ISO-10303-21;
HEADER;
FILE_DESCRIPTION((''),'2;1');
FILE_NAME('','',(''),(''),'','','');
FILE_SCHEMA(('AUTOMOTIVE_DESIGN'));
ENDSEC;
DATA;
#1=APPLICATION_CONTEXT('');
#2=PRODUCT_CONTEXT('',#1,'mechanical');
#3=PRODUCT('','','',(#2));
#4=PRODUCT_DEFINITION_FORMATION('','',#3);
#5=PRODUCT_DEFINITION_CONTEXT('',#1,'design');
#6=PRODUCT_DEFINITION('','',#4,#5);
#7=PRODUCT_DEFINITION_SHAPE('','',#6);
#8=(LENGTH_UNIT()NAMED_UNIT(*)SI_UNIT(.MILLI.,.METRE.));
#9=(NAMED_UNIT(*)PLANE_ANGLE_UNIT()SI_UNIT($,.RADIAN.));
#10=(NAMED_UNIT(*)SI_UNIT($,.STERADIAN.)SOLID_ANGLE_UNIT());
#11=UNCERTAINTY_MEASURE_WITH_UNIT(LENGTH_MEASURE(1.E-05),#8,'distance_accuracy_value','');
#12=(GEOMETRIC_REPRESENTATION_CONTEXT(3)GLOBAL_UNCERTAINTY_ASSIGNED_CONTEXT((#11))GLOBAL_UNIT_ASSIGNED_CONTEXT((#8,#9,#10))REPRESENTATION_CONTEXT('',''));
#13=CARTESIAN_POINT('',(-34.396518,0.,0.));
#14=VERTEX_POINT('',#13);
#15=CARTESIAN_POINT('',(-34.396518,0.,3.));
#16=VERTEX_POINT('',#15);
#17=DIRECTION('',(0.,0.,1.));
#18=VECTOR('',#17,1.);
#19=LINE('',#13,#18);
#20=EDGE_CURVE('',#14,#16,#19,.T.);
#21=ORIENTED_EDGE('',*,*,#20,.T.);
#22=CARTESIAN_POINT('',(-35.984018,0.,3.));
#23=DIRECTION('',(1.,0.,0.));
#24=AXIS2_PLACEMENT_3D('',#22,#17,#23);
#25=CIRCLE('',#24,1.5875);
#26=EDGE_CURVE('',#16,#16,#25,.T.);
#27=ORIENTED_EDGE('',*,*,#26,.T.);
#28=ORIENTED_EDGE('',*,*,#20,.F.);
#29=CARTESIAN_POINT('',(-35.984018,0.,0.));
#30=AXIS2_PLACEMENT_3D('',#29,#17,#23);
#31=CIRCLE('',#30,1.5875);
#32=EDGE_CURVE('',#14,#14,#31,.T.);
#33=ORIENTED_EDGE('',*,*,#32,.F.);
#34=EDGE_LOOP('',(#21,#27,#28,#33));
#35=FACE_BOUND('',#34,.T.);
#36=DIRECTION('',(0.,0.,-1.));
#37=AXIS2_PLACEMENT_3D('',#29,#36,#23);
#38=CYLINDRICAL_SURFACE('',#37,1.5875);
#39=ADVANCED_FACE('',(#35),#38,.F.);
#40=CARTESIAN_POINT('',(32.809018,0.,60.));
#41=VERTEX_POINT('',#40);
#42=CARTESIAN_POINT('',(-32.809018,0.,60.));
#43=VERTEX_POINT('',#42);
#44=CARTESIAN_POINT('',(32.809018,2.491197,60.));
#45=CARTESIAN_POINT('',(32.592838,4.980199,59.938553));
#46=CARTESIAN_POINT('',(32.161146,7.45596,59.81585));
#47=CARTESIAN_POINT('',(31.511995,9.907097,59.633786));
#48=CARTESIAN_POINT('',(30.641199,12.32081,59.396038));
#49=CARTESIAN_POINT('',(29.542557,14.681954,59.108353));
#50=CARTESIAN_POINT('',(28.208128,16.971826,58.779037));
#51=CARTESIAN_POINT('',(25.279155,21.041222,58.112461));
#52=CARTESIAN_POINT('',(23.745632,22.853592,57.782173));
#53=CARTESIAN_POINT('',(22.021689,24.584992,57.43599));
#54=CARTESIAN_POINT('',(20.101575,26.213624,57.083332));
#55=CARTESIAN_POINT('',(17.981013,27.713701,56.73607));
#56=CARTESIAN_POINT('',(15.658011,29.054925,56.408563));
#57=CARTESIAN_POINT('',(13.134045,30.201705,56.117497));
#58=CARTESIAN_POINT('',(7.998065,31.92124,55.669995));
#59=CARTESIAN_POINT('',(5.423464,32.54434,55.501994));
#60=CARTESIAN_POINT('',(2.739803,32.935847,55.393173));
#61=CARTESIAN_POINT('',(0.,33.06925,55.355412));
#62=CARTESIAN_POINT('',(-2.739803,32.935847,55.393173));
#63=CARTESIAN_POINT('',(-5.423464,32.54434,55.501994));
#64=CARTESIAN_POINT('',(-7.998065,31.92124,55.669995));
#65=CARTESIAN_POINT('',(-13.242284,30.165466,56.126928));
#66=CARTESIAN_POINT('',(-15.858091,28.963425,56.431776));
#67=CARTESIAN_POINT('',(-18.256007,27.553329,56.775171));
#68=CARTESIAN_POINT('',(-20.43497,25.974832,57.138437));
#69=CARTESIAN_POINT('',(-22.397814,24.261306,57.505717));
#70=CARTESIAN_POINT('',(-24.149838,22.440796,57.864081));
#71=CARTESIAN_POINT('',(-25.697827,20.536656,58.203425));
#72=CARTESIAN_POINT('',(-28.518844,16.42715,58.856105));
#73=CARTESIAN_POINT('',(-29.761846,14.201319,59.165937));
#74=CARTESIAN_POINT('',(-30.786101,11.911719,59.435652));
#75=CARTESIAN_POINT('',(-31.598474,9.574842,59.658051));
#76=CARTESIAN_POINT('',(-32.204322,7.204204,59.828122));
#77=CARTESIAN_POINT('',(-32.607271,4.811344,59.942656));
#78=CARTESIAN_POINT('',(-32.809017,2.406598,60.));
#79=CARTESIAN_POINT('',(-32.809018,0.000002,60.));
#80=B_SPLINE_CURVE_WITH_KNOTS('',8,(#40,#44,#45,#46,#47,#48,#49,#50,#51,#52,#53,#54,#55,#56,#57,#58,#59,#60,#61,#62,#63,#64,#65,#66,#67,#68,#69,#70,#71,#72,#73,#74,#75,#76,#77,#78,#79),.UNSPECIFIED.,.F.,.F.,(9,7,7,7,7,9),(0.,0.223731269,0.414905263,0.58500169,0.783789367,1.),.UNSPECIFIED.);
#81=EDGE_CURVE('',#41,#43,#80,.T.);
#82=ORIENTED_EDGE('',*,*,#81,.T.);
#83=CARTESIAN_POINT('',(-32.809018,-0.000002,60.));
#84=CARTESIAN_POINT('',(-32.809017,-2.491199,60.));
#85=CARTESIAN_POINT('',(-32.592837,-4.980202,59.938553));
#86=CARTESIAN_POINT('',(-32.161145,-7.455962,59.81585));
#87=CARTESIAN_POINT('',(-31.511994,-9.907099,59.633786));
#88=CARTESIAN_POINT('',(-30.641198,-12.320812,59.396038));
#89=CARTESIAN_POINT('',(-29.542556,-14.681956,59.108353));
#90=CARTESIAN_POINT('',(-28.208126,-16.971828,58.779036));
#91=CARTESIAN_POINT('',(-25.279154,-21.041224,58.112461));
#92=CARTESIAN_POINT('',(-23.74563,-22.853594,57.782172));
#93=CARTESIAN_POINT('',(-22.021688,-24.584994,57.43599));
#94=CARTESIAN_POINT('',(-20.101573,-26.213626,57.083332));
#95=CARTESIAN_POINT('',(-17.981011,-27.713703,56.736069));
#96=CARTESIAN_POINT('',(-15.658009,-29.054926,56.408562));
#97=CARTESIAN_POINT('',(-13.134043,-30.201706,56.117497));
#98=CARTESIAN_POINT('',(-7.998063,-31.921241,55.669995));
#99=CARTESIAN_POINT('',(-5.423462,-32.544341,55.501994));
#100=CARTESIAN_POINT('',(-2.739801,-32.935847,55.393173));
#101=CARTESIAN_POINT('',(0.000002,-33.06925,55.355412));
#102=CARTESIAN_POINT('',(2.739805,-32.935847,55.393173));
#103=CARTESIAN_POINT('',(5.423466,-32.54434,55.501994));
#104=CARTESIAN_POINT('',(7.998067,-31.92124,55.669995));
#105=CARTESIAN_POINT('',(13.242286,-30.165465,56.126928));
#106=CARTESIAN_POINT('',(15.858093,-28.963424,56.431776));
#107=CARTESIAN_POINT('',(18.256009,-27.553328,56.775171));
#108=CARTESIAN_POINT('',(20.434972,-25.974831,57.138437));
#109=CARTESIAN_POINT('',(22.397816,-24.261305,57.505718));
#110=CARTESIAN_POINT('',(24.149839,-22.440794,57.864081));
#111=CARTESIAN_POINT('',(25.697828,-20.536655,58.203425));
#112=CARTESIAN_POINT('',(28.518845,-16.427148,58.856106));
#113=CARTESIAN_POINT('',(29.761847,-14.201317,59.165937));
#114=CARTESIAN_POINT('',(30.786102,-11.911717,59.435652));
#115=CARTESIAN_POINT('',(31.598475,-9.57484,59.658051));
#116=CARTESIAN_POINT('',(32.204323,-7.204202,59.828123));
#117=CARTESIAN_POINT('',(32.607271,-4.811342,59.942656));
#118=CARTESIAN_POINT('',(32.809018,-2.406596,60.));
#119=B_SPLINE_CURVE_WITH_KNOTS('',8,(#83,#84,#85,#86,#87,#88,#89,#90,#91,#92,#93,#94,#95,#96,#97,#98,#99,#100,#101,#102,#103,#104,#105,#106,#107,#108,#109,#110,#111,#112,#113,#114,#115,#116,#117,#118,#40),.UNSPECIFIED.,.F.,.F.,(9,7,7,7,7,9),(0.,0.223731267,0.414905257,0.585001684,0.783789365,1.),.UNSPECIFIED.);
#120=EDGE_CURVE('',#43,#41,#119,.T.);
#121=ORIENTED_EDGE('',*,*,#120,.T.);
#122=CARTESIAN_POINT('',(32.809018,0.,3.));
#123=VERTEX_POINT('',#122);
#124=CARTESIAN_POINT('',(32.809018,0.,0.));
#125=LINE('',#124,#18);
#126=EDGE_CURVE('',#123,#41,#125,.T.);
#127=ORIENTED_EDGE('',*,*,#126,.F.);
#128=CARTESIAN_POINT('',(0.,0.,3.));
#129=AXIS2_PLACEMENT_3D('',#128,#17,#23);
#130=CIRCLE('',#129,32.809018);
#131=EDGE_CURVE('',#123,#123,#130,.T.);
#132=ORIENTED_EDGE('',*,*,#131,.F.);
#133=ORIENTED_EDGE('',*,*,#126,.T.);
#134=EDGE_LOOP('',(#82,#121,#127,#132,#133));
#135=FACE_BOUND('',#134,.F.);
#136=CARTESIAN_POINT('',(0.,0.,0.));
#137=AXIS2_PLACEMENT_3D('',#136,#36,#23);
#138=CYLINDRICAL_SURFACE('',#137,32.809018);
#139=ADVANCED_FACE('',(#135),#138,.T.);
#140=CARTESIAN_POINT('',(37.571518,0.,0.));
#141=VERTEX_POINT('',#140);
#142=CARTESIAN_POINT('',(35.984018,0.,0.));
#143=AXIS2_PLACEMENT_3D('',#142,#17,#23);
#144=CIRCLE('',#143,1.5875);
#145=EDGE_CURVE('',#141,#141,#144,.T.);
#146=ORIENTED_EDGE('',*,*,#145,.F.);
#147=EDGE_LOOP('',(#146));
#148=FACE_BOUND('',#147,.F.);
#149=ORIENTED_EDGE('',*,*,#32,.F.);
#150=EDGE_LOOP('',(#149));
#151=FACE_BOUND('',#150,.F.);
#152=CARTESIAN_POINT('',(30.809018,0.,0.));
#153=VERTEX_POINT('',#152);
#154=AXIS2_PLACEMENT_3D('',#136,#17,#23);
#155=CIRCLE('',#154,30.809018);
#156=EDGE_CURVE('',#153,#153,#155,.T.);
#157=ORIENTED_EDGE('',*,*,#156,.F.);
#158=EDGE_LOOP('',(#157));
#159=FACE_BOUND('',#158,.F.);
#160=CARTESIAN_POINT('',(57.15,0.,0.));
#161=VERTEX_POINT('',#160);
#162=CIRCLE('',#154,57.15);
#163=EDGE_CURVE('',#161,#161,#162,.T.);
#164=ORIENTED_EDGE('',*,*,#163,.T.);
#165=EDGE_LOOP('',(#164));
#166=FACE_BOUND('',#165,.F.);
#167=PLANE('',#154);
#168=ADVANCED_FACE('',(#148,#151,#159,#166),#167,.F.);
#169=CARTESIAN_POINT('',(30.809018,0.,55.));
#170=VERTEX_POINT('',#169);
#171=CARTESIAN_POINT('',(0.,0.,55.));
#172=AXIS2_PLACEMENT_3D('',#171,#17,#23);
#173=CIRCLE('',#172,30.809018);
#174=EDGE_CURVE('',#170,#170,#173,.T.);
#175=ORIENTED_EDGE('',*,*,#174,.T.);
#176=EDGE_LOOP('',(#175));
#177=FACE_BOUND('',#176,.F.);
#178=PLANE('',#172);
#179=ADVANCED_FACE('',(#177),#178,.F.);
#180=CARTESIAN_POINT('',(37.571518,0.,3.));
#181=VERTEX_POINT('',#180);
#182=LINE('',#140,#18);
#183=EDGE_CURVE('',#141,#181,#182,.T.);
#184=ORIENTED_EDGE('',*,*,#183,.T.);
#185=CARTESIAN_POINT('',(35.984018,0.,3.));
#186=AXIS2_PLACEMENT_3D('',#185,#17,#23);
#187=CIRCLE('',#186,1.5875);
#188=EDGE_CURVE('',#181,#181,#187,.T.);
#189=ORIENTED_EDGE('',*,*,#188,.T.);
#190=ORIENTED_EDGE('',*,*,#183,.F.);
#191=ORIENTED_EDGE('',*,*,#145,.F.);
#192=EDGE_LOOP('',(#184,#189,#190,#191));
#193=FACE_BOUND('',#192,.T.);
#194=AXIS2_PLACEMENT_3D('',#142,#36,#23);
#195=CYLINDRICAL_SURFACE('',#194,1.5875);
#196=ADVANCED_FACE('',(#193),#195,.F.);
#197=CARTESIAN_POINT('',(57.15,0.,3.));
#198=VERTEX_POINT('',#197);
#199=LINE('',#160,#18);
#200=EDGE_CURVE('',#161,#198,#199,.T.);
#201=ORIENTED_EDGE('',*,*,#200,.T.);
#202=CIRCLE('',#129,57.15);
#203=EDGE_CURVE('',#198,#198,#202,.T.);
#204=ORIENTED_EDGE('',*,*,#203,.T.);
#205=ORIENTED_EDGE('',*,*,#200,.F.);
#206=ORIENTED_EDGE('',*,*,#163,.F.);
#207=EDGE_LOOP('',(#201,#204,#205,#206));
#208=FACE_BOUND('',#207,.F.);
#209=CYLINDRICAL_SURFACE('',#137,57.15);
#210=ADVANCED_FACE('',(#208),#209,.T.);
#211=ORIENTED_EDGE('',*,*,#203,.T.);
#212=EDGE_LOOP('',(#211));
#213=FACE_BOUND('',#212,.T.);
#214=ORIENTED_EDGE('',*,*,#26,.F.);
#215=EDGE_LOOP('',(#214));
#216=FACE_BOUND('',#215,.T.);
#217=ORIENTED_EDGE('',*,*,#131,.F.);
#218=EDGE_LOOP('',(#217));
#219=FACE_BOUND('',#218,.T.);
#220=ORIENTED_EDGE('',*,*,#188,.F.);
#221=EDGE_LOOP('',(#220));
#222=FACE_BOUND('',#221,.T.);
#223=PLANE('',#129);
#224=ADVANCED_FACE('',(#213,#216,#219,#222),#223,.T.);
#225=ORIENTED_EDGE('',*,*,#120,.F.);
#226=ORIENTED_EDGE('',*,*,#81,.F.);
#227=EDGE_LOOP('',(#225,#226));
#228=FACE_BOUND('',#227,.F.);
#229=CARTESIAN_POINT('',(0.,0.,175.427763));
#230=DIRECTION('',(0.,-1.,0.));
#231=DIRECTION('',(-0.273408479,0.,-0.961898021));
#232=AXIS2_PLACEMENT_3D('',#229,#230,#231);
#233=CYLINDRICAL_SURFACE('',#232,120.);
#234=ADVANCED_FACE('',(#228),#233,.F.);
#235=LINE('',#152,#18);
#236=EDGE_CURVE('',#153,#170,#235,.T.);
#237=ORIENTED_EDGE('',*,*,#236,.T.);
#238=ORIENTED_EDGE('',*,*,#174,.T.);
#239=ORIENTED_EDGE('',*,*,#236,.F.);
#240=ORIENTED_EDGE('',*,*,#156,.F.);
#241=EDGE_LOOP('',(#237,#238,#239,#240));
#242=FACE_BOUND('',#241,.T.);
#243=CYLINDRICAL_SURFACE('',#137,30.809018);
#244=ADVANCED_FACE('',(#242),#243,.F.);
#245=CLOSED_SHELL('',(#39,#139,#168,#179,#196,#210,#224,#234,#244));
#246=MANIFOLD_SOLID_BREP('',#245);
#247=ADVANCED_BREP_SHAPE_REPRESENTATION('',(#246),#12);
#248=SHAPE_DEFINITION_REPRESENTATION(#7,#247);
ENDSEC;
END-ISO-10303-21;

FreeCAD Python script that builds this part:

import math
import FreeCAD as App
import Part
import Sketcher

doc = App.newDocument("Part")
body = doc.addObject("PartDesign::Body", "Body")

sketch1 = body.newObject("Sketcher::SketchObject", "Sketch")
sketch1.AttachmentSupport = (doc.getObject("XY_Plane"), [""])
sketch1.MapMode = "FlatFace"
sketch1.addGeometry([
    Part.Circle(App.Vector(0, 0, 0), App.Vector(0, 0, 1), 57.1),
    Part.Circle(App.Vector(-36, 0, 0), App.Vector(0, 0, 1), 1.6),
    Part.Circle(App.Vector(0, 0, 0), App.Vector(0, 0, 1), 32.8),
    Part.Circle(App.Vector(36, 0, 0), App.Vector(0, 0, 1), 1.6),
], False)
sketch1.addConstraint([
    Sketcher.Constraint("Coincident", 0, 3, -1, 1),
    Sketcher.Constraint("Coincident", 2, 3, -1, 1),
    Sketcher.Constraint("Equal", 1, 3),
    Sketcher.Constraint("Symmetric", 1, 3, 3, 3, -1, 1),
    Sketcher.Constraint("PointOnObject", 1, 3, -1),
    Sketcher.Constraint("Diameter", 0, 114.3),
    Sketcher.Constraint("Diameter", 1, 3.175),
    Sketcher.Constraint("Diameter", 2, 65.618035),
    Sketcher.Constraint("DistanceX", 1, 3, -1, 1, 35.984018),
])
pad1 = body.newObject("PartDesign::Pad", "Pad")
pad1.Profile = sketch1
pad1.Length = 3

sketch2 = body.newObject("Sketcher::SketchObject", "Sketch001")
sketch2.AttachmentSupport = (doc.getObject("XY_Plane"), [""])
sketch2.MapMode = "FlatFace"
sketch2.addGeometry(Part.Circle(App.Vector(0, 0, 0), App.Vector(0, 0, 1), 33), False)
sketch2.addConstraint([
    Sketcher.Constraint("Coincident", 0, 3, -1, 1),
    Sketcher.Constraint("Diameter", 0, 65.618035),
])
pad2 = body.newObject("PartDesign::Pad", "Pad001")
pad2.Profile = sketch2
pad2.Length = 60

sketch3 = body.newObject("Sketcher::SketchObject", "Sketch002")
sketch3.AttachmentSupport = (doc.getObject("XY_Plane"), [""])
sketch3.MapMode = "FlatFace"
sketch3.addGeometry(Part.Circle(App.Vector(0, 0, 0), App.Vector(0, 0, 1), 31), False)
sketch3.addConstraint([
    Sketcher.Constraint("Coincident", 0, 3, -1, 1),
    Sketcher.Constraint("Diameter", 0, 61.618035),
])
pocket1 = body.newObject("PartDesign::Pocket", "Pocket")
pocket1.Profile = sketch3
pocket1.Length = 55
pocket1.Reversed = True

sketch4 = body.newObject("Sketcher::SketchObject", "Sketch003")
sketch4.AttachmentSupport = (doc.getObject("XZ_Plane"), [""])
sketch4.MapMode = "FlatFace"
sketch4.addGeometry([
    Part.LineSegment(App.Vector(33, 60, 0), App.Vector(-33, 60, 0)),
    Part.ArcOfCircle(Part.Circle(App.Vector(0, 175, 0), App.Vector(0, 0, 1), 120), math.radians(-106), math.radians(-74)),
], False)
sketch4.addConstraint([
    Sketcher.Constraint("Coincident", 0, 1, 1, 2),
    Sketcher.Constraint("Coincident", 1, 1, 0, 2),
    Sketcher.Constraint("Horizontal", 0),
    Sketcher.Constraint("PointOnObject", 1, 3, -2),
    Sketcher.Constraint("Radius", 1, 120.0),
    Sketcher.Constraint("DistanceY", -1, 1, 0, 1, 60.0),
    Sketcher.Constraint("DistanceX", 0, 2, 0, 1, 65.618035),
])
pocket2 = body.newObject("PartDesign::Pocket", "Pocket001")
pocket2.Profile = sketch4
pocket2.Length = 81
pocket2.Midplane = True

doc.recompute()
